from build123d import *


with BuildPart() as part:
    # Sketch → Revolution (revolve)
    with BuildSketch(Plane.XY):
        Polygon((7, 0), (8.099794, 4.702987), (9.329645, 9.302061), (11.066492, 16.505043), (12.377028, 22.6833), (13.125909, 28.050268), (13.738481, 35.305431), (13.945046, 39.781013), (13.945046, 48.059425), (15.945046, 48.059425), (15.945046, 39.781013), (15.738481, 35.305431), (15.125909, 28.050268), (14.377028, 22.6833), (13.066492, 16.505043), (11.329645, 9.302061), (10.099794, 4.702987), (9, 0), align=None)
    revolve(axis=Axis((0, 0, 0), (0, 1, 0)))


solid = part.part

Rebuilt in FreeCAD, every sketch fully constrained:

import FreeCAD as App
import Part
import Sketcher
from FreeCAD import Vector
Q = App.Units.Quantity


def add_polygon(sketch, points):
    """Adds a closed chain of lines whose ends are joined by coincident constraints."""
    first, n = sketch.GeometryCount, len(points)
    for a, b in zip(points, points[1:] + points[:1]):
        sketch.addGeometry(Part.LineSegment(App.Vector(*a, 0), App.Vector(*b, 0)), False)
    for i in range(n):
        sketch.addConstraint(Sketcher.Constraint("Coincident", first + i, 2, first + (i + 1) % n, 1))

doc = App.newDocument("Part")
body = doc.addObject("PartDesign::Body", "Body")

# Sketch on XY plane
sketch1 = body.newObject("Sketcher::SketchObject", "Sketch")
sketch1.AttachmentSupport = (doc.getObject("XY_Plane"), [""])
sketch1.MapMode = "FlatFace"
add_polygon(sketch1, [(8.1, 4.7), (7, 0), (9, 0), (10.1, 4.7), (11.3, 9.3), (13.1, 16.5), (14.4, 22.7), (15.1, 28.1), (15.7, 35.3), (15.9, 39.8), (15.9, 48.1), (13.9, 48.1), (13.9, 39.8), (13.7, 35.3), (13.1, 28.1), (12.4, 22.7), (11.1, 16.5), (9.3, 9.3)])  # lines 0-17
sketch1.addConstraint([
    Sketcher.Constraint("Horizontal", 1),
    Sketcher.Constraint("Vertical", 9),
    Sketcher.Constraint("Horizontal", 10),
    Sketcher.Constraint("Vertical", 11),
    Sketcher.Constraint("PointOnObject", 0, 2, -1),
    Sketcher.Constraint("Parallel", 0, 2),
    Sketcher.Constraint("Parallel", 8, 12),
    Sketcher.Constraint("Parallel", 7, 13),
    Sketcher.Constraint("Parallel", 6, 14),
    Sketcher.Constraint("Parallel", 5, 15),
    Sketcher.Constraint("Parallel", 4, 16),
    Sketcher.Constraint("Parallel", 3, 17),
    Sketcher.Constraint("Horizontal", 8, 2, 11, 2),
    Sketcher.Constraint("Horizontal", 7, 2, 12, 2),
    Sketcher.Constraint("Horizontal", 6, 2, 13, 2),
    Sketcher.Constraint("Horizontal", 5, 2, 14, 2),
    Sketcher.Constraint("Horizontal", 4, 2, 15, 2),
    Sketcher.Constraint("Horizontal", 3, 2, 16, 2),
    Sketcher.Constraint("Horizontal", 2, 2, 17, 2),
    Sketcher.Constraint("DistanceX", 1, 1, 1, 2, Q("2 mm")),
    Sketcher.Constraint("DistanceX", -1, 1, 0, 2, Q("7 mm")),
    Sketcher.Constraint("DistanceY", 9, 1, 9, 2, Q("8.278412 mm")),
    Sketcher.Constraint("DistanceY", -1, 1, 5, 2, Q("22.6833 mm")),
    Sketcher.Constraint("DistanceX", 2, 2, 4, 2, Q("2.966698 mm")),
    Sketcher.Constraint("DistanceX", 3, 2, 8, 2, Q("4.615401 mm")),
    Sketcher.Constraint("Distance", 0, Q("4.829869 mm")),
    Sketcher.Constraint("DistanceY", -1, 1, 3, 2, Q("9.302061 mm")),
    Sketcher.Constraint("DistanceX", -1, 1, 6, 2, Q("15.125909 mm")),
    Sketcher.Constraint("DistanceX", -1, 1, 7, 2, Q("15.738481 mm")),
    Sketcher.Constraint("DistanceY", -1, 1, 7, 2, Q("35.305431 mm")),
    Sketcher.Constraint("DistanceX", 2, 2, 3, 2, Q("1.229851 mm")),
    Sketcher.Constraint("DistanceX", 5, 2, 6, 2, Q("0.748881 mm")),
    Sketcher.Constraint("DistanceY", 2, 2, 6, 2, Q("23.347281 mm")),
    Sketcher.Constraint("DistanceX", 4, 2, 7, 2, Q("2.671989 mm")),
    Sketcher.Constraint("DistanceY", 4, 2, 8, 2, Q("23.27597 mm")),
    Sketcher.Constraint("DistanceY", 3, 2, 8, 2, Q("30.478952 mm")),
])
revolution = body.newObject("PartDesign::Revolution", "Revolution")
revolution.Profile = sketch1
revolution.ReferenceAxis = (sketch1, ["V_Axis"])
revolution.Angle = 360

doc.recompute()
